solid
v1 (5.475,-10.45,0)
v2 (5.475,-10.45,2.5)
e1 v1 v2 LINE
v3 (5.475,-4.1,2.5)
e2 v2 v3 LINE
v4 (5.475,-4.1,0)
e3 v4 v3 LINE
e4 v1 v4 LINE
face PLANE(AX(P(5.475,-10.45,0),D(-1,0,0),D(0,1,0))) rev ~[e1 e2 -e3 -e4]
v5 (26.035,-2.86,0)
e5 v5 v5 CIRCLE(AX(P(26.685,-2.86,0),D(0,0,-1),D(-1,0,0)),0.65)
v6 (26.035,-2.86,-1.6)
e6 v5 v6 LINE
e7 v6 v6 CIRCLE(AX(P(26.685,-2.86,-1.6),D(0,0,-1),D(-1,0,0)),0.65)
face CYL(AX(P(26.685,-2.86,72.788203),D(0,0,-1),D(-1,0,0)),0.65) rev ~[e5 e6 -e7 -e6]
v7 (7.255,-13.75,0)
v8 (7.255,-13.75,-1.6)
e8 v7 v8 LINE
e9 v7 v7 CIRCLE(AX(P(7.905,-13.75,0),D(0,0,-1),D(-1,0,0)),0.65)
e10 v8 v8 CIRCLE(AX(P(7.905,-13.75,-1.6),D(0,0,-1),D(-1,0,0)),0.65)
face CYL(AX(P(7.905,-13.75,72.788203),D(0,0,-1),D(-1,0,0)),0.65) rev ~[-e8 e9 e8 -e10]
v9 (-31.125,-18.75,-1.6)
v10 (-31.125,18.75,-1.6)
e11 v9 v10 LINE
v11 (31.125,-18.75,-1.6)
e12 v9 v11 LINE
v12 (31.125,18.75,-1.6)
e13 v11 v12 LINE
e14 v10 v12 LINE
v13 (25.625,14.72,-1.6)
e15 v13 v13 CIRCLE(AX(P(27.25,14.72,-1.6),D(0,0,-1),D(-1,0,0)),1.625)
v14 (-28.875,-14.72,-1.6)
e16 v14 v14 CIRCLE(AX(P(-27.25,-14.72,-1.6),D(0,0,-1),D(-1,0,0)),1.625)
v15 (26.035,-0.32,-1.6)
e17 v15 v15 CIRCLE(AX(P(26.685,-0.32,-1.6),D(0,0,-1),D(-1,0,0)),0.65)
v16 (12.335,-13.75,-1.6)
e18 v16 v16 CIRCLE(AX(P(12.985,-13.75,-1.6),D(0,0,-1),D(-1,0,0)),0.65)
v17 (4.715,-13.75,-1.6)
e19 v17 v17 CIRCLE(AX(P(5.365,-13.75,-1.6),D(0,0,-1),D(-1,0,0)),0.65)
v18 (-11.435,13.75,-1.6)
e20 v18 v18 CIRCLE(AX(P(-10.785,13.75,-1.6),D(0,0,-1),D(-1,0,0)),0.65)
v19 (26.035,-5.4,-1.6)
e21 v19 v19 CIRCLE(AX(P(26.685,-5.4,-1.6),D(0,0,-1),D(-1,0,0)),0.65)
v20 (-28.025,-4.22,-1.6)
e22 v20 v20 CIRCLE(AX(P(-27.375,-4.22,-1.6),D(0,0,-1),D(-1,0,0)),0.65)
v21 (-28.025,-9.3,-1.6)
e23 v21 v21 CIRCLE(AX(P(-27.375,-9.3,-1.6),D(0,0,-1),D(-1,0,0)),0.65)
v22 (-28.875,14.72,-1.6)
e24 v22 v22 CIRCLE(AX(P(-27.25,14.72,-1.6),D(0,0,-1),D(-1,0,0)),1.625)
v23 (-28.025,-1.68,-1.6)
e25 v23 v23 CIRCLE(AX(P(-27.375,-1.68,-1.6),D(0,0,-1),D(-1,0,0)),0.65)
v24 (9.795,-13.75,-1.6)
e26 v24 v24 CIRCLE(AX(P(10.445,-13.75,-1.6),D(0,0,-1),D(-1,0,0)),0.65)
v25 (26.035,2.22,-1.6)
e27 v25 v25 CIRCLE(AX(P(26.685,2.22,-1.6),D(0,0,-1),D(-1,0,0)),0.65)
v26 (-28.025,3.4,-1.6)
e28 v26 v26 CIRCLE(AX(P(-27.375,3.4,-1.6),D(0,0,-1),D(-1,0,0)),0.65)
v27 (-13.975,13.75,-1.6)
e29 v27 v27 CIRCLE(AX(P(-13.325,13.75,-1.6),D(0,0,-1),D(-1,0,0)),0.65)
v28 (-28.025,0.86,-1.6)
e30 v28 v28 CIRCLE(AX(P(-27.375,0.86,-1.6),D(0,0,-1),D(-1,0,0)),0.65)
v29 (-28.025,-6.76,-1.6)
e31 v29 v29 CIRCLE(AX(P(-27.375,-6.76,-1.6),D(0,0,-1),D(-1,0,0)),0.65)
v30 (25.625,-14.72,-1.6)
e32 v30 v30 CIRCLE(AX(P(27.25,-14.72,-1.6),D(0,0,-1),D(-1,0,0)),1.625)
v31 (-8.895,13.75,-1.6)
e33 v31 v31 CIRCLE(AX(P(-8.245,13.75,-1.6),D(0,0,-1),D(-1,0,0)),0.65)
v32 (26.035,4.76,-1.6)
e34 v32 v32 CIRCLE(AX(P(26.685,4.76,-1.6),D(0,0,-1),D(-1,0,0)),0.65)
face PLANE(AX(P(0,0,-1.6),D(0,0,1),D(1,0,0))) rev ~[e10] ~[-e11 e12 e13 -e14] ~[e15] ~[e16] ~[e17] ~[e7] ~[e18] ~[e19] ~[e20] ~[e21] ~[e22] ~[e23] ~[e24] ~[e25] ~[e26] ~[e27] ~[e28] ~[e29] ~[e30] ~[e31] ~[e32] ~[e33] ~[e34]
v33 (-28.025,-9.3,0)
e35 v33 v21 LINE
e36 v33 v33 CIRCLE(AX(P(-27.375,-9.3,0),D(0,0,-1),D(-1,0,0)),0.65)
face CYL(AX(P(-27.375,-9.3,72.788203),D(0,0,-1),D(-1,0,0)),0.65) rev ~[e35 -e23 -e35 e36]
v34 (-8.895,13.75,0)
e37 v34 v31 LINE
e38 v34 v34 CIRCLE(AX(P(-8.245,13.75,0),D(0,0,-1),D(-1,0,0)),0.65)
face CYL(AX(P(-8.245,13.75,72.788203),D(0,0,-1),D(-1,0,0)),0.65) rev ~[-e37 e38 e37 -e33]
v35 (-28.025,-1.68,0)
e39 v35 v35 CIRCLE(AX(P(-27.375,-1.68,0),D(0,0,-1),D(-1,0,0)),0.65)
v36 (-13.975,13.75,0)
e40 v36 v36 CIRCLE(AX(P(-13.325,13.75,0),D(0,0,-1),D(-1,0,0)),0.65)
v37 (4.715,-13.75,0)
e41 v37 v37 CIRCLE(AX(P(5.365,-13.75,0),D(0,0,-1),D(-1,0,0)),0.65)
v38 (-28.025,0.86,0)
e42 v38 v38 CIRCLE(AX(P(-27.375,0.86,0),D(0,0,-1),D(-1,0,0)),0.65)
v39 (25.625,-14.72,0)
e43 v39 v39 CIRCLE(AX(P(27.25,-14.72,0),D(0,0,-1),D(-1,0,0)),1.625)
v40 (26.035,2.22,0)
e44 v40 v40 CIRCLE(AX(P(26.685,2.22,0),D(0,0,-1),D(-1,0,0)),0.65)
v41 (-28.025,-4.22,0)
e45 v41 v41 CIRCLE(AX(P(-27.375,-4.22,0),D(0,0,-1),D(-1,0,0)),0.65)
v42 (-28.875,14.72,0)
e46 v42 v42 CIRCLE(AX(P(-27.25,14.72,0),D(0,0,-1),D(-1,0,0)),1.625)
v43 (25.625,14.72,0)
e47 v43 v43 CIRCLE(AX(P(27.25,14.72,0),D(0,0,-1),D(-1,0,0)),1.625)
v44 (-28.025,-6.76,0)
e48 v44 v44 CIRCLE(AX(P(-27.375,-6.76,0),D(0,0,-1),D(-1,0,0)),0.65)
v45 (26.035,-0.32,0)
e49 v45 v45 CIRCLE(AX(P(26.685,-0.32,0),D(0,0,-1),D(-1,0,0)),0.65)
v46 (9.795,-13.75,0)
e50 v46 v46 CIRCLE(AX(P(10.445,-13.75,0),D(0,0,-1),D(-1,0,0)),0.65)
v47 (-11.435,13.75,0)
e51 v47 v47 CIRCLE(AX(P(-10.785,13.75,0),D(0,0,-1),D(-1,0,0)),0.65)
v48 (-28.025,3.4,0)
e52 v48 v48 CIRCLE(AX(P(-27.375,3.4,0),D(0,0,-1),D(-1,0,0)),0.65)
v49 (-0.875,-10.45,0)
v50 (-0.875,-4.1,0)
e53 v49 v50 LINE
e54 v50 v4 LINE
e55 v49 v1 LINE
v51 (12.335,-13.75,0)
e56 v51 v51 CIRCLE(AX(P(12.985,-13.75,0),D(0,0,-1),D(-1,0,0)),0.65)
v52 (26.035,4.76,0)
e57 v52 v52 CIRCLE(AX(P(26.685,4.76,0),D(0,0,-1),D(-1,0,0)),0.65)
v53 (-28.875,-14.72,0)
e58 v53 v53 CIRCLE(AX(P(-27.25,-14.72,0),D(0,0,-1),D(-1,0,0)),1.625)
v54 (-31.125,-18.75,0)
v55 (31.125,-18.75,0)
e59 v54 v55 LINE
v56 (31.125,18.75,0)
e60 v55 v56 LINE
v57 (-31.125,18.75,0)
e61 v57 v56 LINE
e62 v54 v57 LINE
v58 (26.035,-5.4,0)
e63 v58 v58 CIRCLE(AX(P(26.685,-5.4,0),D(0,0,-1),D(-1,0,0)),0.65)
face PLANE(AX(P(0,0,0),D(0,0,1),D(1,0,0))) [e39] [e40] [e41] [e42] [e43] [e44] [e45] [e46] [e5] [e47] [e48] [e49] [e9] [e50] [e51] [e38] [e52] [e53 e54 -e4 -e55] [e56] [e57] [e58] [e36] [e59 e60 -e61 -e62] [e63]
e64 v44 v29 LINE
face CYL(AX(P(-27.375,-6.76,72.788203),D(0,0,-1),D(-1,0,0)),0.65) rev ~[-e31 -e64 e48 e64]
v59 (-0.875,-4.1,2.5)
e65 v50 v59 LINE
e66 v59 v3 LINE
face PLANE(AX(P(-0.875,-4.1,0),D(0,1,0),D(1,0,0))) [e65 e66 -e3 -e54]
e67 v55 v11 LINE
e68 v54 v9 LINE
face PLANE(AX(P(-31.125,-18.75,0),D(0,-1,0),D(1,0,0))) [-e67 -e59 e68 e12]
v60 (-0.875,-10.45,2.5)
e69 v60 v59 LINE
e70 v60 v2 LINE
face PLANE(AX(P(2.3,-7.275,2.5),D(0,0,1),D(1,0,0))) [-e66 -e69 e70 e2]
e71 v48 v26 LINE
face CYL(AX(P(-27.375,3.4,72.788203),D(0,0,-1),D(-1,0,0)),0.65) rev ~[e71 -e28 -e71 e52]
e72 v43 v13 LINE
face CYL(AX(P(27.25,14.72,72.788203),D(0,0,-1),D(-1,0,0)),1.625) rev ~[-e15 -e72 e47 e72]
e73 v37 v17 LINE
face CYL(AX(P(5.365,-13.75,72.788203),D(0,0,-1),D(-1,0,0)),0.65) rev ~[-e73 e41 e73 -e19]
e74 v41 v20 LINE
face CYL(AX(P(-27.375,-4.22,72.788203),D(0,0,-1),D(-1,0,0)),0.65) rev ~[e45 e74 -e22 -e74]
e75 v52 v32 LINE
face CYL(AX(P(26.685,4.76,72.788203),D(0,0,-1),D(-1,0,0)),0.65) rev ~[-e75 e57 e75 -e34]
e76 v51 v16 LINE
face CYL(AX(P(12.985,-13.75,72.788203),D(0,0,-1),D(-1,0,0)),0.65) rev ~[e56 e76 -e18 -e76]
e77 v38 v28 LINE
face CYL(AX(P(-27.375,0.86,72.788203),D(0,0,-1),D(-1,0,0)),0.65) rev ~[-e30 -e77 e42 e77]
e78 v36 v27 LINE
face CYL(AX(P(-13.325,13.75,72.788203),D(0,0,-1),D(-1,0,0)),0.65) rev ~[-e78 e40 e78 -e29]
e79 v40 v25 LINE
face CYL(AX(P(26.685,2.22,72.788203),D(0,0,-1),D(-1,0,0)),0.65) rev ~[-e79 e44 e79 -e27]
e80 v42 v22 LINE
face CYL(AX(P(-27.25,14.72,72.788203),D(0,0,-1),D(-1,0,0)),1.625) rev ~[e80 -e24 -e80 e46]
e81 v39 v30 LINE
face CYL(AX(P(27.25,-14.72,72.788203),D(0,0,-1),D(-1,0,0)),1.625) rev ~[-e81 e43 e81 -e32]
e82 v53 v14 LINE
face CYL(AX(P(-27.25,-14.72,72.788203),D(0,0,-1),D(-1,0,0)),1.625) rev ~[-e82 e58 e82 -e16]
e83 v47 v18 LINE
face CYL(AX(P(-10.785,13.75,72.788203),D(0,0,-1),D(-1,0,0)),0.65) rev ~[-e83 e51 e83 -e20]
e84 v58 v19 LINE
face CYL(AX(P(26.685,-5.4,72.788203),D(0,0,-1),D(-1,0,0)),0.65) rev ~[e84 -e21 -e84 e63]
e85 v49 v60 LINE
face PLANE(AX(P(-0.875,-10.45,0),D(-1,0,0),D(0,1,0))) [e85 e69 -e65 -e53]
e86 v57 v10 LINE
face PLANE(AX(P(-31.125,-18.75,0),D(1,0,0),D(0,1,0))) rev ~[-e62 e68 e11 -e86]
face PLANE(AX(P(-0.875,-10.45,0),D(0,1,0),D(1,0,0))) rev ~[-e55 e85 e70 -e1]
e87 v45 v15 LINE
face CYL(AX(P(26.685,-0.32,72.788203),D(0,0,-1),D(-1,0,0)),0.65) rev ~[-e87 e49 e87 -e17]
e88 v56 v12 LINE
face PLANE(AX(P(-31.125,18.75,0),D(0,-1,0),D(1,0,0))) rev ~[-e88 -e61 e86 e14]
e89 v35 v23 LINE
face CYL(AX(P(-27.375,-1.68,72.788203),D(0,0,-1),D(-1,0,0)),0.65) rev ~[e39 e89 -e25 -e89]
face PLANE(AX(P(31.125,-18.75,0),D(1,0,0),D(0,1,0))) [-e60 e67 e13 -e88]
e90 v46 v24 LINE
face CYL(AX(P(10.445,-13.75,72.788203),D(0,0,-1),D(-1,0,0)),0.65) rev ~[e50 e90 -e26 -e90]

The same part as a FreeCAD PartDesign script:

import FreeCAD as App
import Part
import Sketcher
from FreeCAD import Vector
Q = App.Units.Quantity


def add_polygon(sketch, points):
    """Adds a closed chain of lines whose ends are joined by coincident constraints."""
    first, n = sketch.GeometryCount, len(points)
    for a, b in zip(points, points[1:] + points[:1]):
        sketch.addGeometry(Part.LineSegment(App.Vector(*a, 0), App.Vector(*b, 0)), False)
    for i in range(n):
        sketch.addConstraint(Sketcher.Constraint("Coincident", first + i, 2, first + (i + 1) % n, 1))

doc = App.newDocument("Part")
body = doc.addObject("PartDesign::Body", "Body")

# Sketch on XY plane
sketch1 = body.newObject("Sketcher::SketchObject", "Sketch")
sketch1.AttachmentSupport = (doc.getObject("XY_Plane"), [""])
sketch1.MapMode = "FlatFace"
add_polygon(sketch1, [(-31, 19), (-31, -19), (31, -19), (31, 19)])  # lines 0-3
sketch1.addConstraint(Sketcher.Constraint("Vertical", 0))
sketch1.addConstraint(Sketcher.Constraint("Horizontal", 1))
sketch1.addConstraint(Sketcher.Constraint("Vertical", 2))
sketch1.addConstraint(Sketcher.Constraint("Horizontal", 3))
sketch1.addConstraint(Sketcher.Constraint("Symmetric", 0, 2, 2, 2, -1, 1))
sketch1.addConstraint(Sketcher.Constraint("DistanceY", 0, 2, 0, 1, Q("37.5 mm")))
sketch1.addConstraint(Sketcher.Constraint("DistanceX", 1, 1, 1, 2, Q("62.25 mm")))
pad1 = body.newObject("PartDesign::Pad", "Pad")
pad1.Profile = sketch1
pad1.Length = 1.6
pad1.Reversed = True

# Sketch on XY plane
sketch2 = body.newObject("Sketcher::SketchObject", "Sketch001")
sketch2.AttachmentSupport = (doc.getObject("XY_Plane"), [""])
sketch2.MapMode = "FlatFace"
add_polygon(sketch2, [(-1, -4), (-1, -10), (5, -10), (5, -4)])  # lines 0-3
sketch2.addConstraint(Sketcher.Constraint("Vertical", 0))
sketch2.addConstraint(Sketcher.Constraint("Horizontal", 1))
sketch2.addConstraint(Sketcher.Constraint("Vertical", 2))
sketch2.addConstraint(Sketcher.Constraint("Horizontal", 3))
sketch2.addConstraint(Sketcher.Constraint("Equal", 3, 0))
sketch2.addConstraint(Sketcher.Constraint("DistanceX", 1, 1, 1, 2, Q("6.35 mm")))
sketch2.addConstraint(Sketcher.Constraint("DistanceY", 2, 2, -1, 1, Q("4.1 mm")))
sketch2.addConstraint(Sketcher.Constraint("DistanceX", 0, 2, -1, 1, Q("0.875 mm")))
pad2 = body.newObject("PartDesign::Pad", "Pad001")
pad2.Profile = sketch2
pad2.Length = 2.5

# Sketch on XY plane
sketch3 = body.newObject("Sketcher::SketchObject", "Sketch002")
sketch3.AttachmentSupport = (doc.getObject("XY_Plane"), [""])
sketch3.MapMode = "FlatFace"
sketch3.addGeometry(Part.Circle(Vector(-13.3, 13.8, 0), Vector(0, 0, 1), 0.7), False)
sketch3.addGeometry(Part.Circle(Vector(-10.8, 13.8, 0), Vector(0, 0, 1), 0.7), False)
sketch3.addGeometry(Part.Circle(Vector(-8.2, 13.8, 0), Vector(0, 0, 1), 0.7), False)
sketch3.addGeometry(Part.Circle(Vector(-27.4, 3.4, 0), Vector(0, 0, 1), 0.7), False)
sketch3.addGeometry(Part.Circle(Vector(-27.4, 0.9, 0), Vector(0, 0, 1), 0.7), False)
sketch3.addGeometry(Part.Circle(Vector(-27.4, -1.7, 0), Vector(0, 0, 1), 0.7), False)
sketch3.addGeometry(Part.Circle(Vector(-27.4, -4.2, 0), Vector(0, 0, 1), 0.7), False)
sketch3.addGeometry(Part.Circle(Vector(-27.4, -6.8, 0), Vector(0, 0, 1), 0.7), False)
sketch3.addGeometry(Part.Circle(Vector(-27.4, -9.3, 0), Vector(0, 0, 1), 0.7), False)
sketch3.addGeometry(Part.Circle(Vector(5.4, -13.8, 0), Vector(0, 0, 1), 0.7), False)
sketch3.addGeometry(Part.Circle(Vector(7.9, -13.8, 0), Vector(0, 0, 1), 0.7), False)
sketch3.addGeometry(Part.Circle(Vector(10.4, -13.8, 0), Vector(0, 0, 1), 0.7), False)
sketch3.addGeometry(Part.Circle(Vector(13, -13.8, 0), Vector(0, 0, 1), 0.7), False)
sketch3.addGeometry(Part.Circle(Vector(26.7, -5.4, 0), Vector(0, 0, 1), 0.7), False)
sketch3.addGeometry(Part.Circle(Vector(26.7, -2.9, 0), Vector(0, 0, 1), 0.7), False)
sketch3.addGeometry(Part.Circle(Vector(26.7, -0.3, 0), Vector(0, 0, 1), 0.7), False)
sketch3.addGeometry(Part.Circle(Vector(26.7, 2.2, 0), Vector(0, 0, 1), 0.7), False)
sketch3.addGeometry(Part.Circle(Vector(26.7, 4.8, 0), Vector(0, 0, 1), 0.7), False)
sketch3.addConstraint(Sketcher.Constraint("Equal", 0, 1))
sketch3.addConstraint(Sketcher.Constraint("Equal", 1, 2))
sketch3.addConstraint(Sketcher.Constraint("Equal", 2, 3))
sketch3.addConstraint(Sketcher.Constraint("Equal", 3, 4))
sketch3.addConstraint(Sketcher.Constraint("Equal", 4, 5))
sketch3.addConstraint(Sketcher.Constraint("Equal", 5, 6))
sketch3.addConstraint(Sketcher.Constraint("Equal", 6, 7))
sketch3.addConstraint(Sketcher.Constraint("Equal", 7, 8))
sketch3.addConstraint(Sketcher.Constraint("Equal", 8, 9))
sketch3.addConstraint(Sketcher.Constraint("Equal", 9, 10))
sketch3.addConstraint(Sketcher.Constraint("Equal", 10, 11))
sketch3.addConstraint(Sketcher.Constraint("Equal", 11, 12))
sketch3.addConstraint(Sketcher.Constraint("Equal", 12, 13))
sketch3.addConstraint(Sketcher.Constraint("Equal", 13, 14))
sketch3.addConstraint(Sketcher.Constraint("Equal", 14, 15))
sketch3.addConstraint(Sketcher.Constraint("Equal", 15, 16))
sketch3.addConstraint(Sketcher.Constraint("Equal", 16, 17))
sketch3.addConstraint(Sketcher.Constraint("Horizontal", 0, 3, 1, 3))
sketch3.addConstraint(Sketcher.Constraint("Horizontal", 1, 3, 2, 3))
sketch3.addConstraint(Sketcher.Constraint("Horizontal", 9, 3, 10, 3))
sketch3.addConstraint(Sketcher.Constraint("Horizontal", 10, 3, 11, 3))
sketch3.addConstraint(Sketcher.Constraint("Horizontal", 11, 3, 12, 3))
sketch3.addConstraint(Sketcher.Constraint("Vertical", 3, 3, 4, 3))
sketch3.addConstraint(Sketcher.Constraint("Vertical", 4, 3, 5, 3))
sketch3.addConstraint(Sketcher.Constraint("Vertical", 5, 3, 6, 3))
sketch3.addConstraint(Sketcher.Constraint("Vertical", 6, 3, 7, 3))
sketch3.addConstraint(Sketcher.Constraint("Vertical", 7, 3, 8, 3))
sketch3.addConstraint(Sketcher.Constraint("Vertical", 13, 3, 14, 3))
sketch3.addConstraint(Sketcher.Constraint("Vertical", 14, 3, 15, 3))
sketch3.addConstraint(Sketcher.Constraint("Vertical", 15, 3, 16, 3))
sketch3.addConstraint(Sketcher.Constraint("Vertical", 16, 3, 17, 3))
sketch3.addConstraint(Sketcher.Constraint("Diameter", 0, Q("1.3 mm")))
sketch3.addConstraint(Sketcher.Constraint("DistanceY", -1, 1, 3, 3, Q("3.4 mm")))
sketch3.addConstraint(Sketcher.Constraint("DistanceY", 8, 3, -1, 1, Q("9.3 mm")))
sketch3.addConstraint(Sketcher.Constraint("DistanceY", 13, 3, -1, 1, Q("5.4 mm")))
sketch3.addConstraint(Sketcher.Constraint("DistanceY", 9, 3, 2, 3, Q("27.5 mm")))
sketch3.addConstraint(Sketcher.Constraint("DistanceX", 12, 3, 13, 3, Q("13.7 mm")))
sketch3.addConstraint(Sketcher.Constraint("DistanceY", -1, 1, 0, 3, Q("13.75 mm")))
sketch3.addConstraint(Sketcher.Constraint("DistanceY", -1, 1, 4, 3, Q("0.86 mm")))
sketch3.addConstraint(Sketcher.Constraint("DistanceY", 5, 3, -1, 1, Q("1.68 mm")))
sketch3.addConstraint(Sketcher.Constraint("DistanceY", 6, 3, -1, 1, Q("4.22 mm")))
sketch3.addConstraint(Sketcher.Constraint("DistanceY", 7, 3, -1, 1, Q("6.76 mm")))
sketch3.addConstraint(Sketcher.Constraint("DistanceY", 14, 3, -1, 1, Q("2.86 mm")))
sketch3.addConstraint(Sketcher.Constraint("DistanceY", 15, 3, -1, 1, Q("0.32 mm")))
sketch3.addConstraint(Sketcher.Constraint("DistanceY", -1, 1, 16, 3, Q("2.22 mm")))
sketch3.addConstraint(Sketcher.Constraint("DistanceY", -1, 1, 17, 3, Q("4.76 mm")))
sketch3.addConstraint(Sketcher.Constraint("DistanceX", 0, 3, 1, 3, Q("2.54 mm")))
sketch3.addConstraint(Sketcher.Constraint("DistanceX", 1, 3, 2, 3, Q("2.54 mm")))
sketch3.addConstraint(Sketcher.Constraint("DistanceX", 3, 3, 0, 3, Q("14.05 mm")))
sketch3.addConstraint(Sketcher.Constraint("DistanceX", 2, 3, 9, 3, Q("13.61 mm")))
sketch3.addConstraint(Sketcher.Constraint("DistanceX", 9, 3, 10, 3, Q("2.54 mm")))
sketch3.addConstraint(Sketcher.Constraint("DistanceX", 10, 3, 11, 3, Q("2.54 mm")))
sketch3.addConstraint(Sketcher.Constraint("DistanceX", 11, 3, 12, 3, Q("2.54 mm")))
sketch3.addConstraint(Sketcher.Constraint("DistanceX", 0, 3, -1, 1, Q("13.325 mm")))
doc.recompute()
hole = body.newObject("PartDesign::Hole", "Hole")
hole.Profile = sketch3
hole.ThreadType = "None"
hole.Diameter = 1.3
hole.DepthType = "ThroughAll"

# Sketch on XY plane
sketch4 = body.newObject("Sketcher::SketchObject", "Sketch003")
sketch4.AttachmentSupport = (doc.getObject("XY_Plane"), [""])
sketch4.MapMode = "FlatFace"
sketch4.addGeometry(Part.Circle(Vector(-27.2, 14.7, 0), Vector(0, 0, 1), 1.6), False)
sketch4.addGeometry(Part.Circle(Vector(-27.2, -14.7, 0), Vector(0, 0, 1), 1.6), False)
sketch4.addGeometry(Part.Circle(Vector(27.2, -14.7, 0), Vector(0, 0, 1), 1.6), False)
sketch4.addGeometry(Part.Circle(Vector(27.2, 14.7, 0), Vector(0, 0, 1), 1.6), False)
sketch4.addConstraint(Sketcher.Constraint("Equal", 0, 1))
sketch4.addConstraint(Sketcher.Constraint("Equal", 1, 2))
sketch4.addConstraint(Sketcher.Constraint("Equal", 2, 3))
sketch4.addConstraint(Sketcher.Constraint("Symmetric", 0, 3, 2, 3, -1, 1))
sketch4.addConstraint(Sketcher.Constraint("Symmetric", 1, 3, 3, 3, -1, 1))
sketch4.addConstraint(Sketcher.Constraint("Symmetric", 1, 3, 2, 3, -2))
sketch4.addConstraint(Sketcher.Constraint("Diameter", 0, Q("3.25 mm")))
sketch4.addConstraint(Sketcher.Constraint("DistanceX", 1, 3, 2, 3, Q("54.5 mm")))
sketch4.addConstraint(Sketcher.Constraint("DistanceY", -1, 1, 0, 3, Q("14.72 mm")))
doc.recompute()
hole2 = body.newObject("PartDesign::Hole", "Hole001")
hole2.Profile = sketch4
hole2.ThreadType = "None"
hole2.Diameter = 3.25
hole2.DepthType = "ThroughAll"

doc.recompute()
